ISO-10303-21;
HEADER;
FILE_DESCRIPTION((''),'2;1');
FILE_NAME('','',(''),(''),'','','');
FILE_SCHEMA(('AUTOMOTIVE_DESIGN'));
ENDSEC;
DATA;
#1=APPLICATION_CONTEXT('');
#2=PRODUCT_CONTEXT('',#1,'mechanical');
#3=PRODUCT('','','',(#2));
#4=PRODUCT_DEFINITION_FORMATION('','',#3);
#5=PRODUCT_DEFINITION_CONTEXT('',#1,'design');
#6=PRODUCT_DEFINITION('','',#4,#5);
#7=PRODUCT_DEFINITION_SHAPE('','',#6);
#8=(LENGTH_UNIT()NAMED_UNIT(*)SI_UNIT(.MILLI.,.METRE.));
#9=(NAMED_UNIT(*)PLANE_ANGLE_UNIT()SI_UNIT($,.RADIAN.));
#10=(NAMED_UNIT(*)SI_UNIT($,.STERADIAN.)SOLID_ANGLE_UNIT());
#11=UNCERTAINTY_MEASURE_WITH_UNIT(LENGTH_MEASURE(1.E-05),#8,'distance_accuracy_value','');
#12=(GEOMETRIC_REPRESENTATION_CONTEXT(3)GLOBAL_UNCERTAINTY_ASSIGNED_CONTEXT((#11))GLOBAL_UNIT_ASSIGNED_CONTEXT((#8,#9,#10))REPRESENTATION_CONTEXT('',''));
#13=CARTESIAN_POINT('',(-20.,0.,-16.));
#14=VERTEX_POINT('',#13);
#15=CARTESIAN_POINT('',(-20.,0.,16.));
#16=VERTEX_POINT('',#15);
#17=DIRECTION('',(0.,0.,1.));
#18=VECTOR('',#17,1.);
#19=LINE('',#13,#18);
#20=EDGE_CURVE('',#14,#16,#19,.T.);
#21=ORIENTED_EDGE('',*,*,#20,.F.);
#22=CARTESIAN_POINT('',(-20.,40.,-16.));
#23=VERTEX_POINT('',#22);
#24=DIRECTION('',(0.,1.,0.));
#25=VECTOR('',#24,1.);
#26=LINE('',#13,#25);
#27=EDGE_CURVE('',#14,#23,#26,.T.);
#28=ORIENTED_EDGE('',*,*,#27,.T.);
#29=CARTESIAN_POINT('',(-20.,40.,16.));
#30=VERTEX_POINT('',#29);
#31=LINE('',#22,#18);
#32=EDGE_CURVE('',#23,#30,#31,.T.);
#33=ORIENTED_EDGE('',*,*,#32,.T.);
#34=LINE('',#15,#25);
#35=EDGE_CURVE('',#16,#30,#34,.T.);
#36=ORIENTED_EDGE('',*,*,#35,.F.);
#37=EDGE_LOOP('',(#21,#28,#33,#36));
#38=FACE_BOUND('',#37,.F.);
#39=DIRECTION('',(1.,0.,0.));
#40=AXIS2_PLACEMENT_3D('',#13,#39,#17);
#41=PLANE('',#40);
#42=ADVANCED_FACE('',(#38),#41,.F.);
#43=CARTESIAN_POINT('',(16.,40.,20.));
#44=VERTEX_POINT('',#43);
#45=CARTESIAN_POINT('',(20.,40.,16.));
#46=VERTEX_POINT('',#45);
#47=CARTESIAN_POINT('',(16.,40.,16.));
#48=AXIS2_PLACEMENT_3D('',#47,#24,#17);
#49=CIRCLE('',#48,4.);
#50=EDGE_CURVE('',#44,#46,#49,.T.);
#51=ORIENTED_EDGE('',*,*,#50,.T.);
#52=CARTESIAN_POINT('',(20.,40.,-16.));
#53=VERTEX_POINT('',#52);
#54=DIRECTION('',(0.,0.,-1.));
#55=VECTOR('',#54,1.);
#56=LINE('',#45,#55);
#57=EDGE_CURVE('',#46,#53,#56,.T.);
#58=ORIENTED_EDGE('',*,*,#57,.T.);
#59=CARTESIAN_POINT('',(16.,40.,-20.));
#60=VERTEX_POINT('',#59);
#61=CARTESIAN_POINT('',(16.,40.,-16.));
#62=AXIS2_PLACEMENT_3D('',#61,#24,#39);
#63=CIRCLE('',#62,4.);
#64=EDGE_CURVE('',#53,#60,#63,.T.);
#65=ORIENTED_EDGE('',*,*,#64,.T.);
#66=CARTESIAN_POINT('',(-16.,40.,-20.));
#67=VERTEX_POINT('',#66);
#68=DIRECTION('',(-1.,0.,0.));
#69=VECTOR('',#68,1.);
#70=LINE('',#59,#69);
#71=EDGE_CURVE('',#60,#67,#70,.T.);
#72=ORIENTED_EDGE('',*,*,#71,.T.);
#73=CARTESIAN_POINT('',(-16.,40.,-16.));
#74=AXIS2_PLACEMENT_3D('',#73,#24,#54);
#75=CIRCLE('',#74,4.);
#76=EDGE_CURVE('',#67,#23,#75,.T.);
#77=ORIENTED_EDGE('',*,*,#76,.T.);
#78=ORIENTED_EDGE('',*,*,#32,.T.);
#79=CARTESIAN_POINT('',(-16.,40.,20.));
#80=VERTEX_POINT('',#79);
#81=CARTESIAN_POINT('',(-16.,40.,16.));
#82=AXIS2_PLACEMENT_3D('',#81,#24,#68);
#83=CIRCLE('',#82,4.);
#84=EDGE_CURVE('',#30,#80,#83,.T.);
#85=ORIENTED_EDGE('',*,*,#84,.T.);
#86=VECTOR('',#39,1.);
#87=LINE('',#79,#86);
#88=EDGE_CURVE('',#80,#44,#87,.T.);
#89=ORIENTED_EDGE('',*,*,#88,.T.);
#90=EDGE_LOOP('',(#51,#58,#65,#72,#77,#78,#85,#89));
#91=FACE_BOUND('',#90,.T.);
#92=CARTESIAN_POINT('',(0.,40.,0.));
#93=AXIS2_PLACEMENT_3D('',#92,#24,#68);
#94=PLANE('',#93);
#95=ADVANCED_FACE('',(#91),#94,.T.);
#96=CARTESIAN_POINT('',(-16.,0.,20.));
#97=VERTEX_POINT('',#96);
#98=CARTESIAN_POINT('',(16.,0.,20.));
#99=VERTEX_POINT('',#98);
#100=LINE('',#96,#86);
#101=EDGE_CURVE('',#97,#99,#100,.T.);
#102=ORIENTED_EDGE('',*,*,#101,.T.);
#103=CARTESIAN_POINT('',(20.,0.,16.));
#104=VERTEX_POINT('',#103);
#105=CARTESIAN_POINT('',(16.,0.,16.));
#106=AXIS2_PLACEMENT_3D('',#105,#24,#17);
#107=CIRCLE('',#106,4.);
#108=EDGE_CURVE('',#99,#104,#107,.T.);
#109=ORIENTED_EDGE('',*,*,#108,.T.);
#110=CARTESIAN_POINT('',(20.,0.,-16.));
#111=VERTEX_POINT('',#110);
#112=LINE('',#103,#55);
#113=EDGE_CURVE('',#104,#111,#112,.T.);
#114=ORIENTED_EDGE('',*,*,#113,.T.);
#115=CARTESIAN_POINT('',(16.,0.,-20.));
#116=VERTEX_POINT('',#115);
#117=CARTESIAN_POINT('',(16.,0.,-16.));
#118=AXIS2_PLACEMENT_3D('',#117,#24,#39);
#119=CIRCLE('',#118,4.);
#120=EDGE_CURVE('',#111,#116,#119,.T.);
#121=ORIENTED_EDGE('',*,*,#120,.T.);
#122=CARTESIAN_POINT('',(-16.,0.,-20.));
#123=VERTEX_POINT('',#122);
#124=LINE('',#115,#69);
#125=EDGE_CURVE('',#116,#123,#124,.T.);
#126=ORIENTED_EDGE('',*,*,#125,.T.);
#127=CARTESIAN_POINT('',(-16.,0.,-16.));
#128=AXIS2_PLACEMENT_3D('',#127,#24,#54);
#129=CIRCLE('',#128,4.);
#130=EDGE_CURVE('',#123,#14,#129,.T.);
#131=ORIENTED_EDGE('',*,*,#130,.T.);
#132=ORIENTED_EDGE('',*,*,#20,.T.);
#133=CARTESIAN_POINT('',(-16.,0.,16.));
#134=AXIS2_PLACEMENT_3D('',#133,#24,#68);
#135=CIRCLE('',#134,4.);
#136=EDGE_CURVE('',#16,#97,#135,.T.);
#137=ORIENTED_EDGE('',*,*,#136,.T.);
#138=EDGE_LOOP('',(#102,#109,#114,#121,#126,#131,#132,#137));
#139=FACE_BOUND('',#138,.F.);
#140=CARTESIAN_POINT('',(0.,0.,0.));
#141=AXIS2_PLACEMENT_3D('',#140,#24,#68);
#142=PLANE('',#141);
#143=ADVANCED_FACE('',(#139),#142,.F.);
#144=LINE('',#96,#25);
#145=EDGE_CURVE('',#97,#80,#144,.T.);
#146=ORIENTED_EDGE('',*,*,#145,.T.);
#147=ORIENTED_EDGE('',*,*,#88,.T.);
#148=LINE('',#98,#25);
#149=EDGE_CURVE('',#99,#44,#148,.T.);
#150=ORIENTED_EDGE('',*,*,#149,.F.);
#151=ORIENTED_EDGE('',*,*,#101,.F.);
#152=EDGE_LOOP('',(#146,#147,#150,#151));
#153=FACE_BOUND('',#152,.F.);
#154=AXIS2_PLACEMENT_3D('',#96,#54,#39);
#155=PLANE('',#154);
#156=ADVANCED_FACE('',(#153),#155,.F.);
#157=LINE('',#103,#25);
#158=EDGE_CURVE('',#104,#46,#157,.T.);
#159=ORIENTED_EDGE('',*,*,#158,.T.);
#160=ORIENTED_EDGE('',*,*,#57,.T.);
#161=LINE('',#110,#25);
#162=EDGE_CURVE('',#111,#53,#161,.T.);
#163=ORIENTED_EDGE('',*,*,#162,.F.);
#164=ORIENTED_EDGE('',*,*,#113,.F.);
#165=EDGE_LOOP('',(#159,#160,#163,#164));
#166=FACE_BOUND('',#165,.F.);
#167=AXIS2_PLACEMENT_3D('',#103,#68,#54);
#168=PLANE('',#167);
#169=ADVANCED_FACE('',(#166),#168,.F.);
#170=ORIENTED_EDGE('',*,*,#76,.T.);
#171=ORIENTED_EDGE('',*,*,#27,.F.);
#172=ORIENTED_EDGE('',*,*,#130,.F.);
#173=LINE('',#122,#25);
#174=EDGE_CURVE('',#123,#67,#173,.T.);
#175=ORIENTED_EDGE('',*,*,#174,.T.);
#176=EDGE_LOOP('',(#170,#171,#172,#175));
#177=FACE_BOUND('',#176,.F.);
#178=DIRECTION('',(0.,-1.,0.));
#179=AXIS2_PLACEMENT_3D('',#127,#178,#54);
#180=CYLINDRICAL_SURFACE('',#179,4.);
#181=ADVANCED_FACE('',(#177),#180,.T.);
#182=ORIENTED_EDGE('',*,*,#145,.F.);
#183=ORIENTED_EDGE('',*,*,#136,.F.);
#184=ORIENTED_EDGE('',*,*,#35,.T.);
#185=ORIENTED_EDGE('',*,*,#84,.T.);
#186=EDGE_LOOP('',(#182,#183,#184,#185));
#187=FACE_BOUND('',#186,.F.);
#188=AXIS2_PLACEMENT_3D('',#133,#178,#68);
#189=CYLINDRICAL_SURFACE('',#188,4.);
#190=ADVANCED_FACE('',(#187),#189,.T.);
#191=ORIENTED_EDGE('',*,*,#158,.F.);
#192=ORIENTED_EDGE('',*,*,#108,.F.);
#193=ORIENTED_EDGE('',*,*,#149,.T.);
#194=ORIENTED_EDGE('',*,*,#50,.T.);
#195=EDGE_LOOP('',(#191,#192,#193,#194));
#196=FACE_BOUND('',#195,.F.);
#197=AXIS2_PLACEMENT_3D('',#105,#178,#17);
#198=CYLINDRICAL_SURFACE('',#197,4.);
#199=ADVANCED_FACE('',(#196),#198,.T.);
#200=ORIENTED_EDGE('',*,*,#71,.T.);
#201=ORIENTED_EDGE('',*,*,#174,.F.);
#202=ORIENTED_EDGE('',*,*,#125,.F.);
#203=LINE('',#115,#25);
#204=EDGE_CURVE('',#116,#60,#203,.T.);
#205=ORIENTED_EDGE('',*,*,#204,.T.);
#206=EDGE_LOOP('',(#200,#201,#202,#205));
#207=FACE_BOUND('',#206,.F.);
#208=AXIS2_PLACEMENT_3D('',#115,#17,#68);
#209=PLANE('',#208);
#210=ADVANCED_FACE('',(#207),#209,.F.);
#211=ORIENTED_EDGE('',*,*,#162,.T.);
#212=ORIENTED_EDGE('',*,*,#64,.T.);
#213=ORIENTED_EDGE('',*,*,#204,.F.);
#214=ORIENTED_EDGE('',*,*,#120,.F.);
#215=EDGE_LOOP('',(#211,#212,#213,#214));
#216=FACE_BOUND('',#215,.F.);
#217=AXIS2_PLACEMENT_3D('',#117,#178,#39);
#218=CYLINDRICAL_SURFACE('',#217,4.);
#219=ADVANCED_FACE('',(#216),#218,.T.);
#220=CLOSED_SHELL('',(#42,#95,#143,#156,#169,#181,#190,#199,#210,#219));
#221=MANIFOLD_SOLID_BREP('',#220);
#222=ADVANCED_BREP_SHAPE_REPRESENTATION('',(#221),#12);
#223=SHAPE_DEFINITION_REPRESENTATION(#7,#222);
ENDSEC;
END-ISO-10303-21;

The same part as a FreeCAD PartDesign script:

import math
import FreeCAD as App
import Part
import Sketcher
Q = App.Units.Quantity

doc = App.newDocument("Part")
body = doc.addObject("PartDesign::Body", "Body")

# Sketch on XZ plane
sketch1 = body.newObject("Sketcher::SketchObject", "Sketch")
sketch1.AttachmentSupport = (doc.getObject("XZ_Plane"), [""])
sketch1.MapMode = "FlatFace"
sketch1.addGeometry([
    Part.ArcOfCircle(Part.Circle(App.Vector(-16, 16, 0), App.Vector(0, 0, 1), 4), math.radians(90), math.radians(180)),  # 0
    Part.LineSegment(App.Vector(-16, 20, 0), App.Vector(16, 20, 0)),  # 1
    Part.ArcOfCircle(Part.Circle(App.Vector(16, 16, 0), App.Vector(0, 0, 1), 4), math.radians(0), math.radians(90)),  # 2
    Part.LineSegment(App.Vector(20, 16, 0), App.Vector(20, -16, 0)),  # 3
    Part.ArcOfCircle(Part.Circle(App.Vector(16, -16, 0), App.Vector(0, 0, 1), 4), math.radians(-90), math.radians(0)),  # 4
    Part.LineSegment(App.Vector(16, -20, 0), App.Vector(-16, -20, 0)),  # 5
    Part.ArcOfCircle(Part.Circle(App.Vector(-16, -16, 0), App.Vector(0, 0, 1), 4), math.radians(180), math.radians(270)),  # 6
    Part.LineSegment(App.Vector(-20, -16, 0), App.Vector(-20, 16, 0)),  # 7
], False)
sketch1.addConstraint([
    Sketcher.Constraint("Tangent", 0, 1, 1, 1),
    Sketcher.Constraint("Tangent", 1, 2, 2, 2),
    Sketcher.Constraint("Tangent", 2, 1, 3, 1),
    Sketcher.Constraint("Tangent", 3, 2, 4, 2),
    Sketcher.Constraint("Tangent", 4, 1, 5, 1),
    Sketcher.Constraint("Tangent", 5, 2, 6, 2),
    Sketcher.Constraint("Tangent", 6, 1, 7, 1),
    Sketcher.Constraint("Tangent", 7, 2, 0, 2),
    Sketcher.Constraint("Horizontal", 1),
    Sketcher.Constraint("Vertical", 3),
    Sketcher.Constraint("Horizontal", 5),
    Sketcher.Constraint("Vertical", 7),
    Sketcher.Constraint("Equal", 0, 2),
    Sketcher.Constraint("Equal", 2, 4),
    Sketcher.Constraint("Equal", 4, 6),
    Sketcher.Constraint("Symmetric", 0, 3, 4, 3, -1, 1),
    Sketcher.Constraint("Equal", 5, 3),
    Sketcher.Constraint("Radius", 0, Q("4 mm")),
    Sketcher.Constraint("DistanceX", 1, 1, 1, 2, Q("32 mm")),
])
pad1 = body.newObject("PartDesign::Pad", "Pad")
pad1.Profile = sketch1
pad1.Length = 40
pad1.Reversed = True

doc.recompute()
